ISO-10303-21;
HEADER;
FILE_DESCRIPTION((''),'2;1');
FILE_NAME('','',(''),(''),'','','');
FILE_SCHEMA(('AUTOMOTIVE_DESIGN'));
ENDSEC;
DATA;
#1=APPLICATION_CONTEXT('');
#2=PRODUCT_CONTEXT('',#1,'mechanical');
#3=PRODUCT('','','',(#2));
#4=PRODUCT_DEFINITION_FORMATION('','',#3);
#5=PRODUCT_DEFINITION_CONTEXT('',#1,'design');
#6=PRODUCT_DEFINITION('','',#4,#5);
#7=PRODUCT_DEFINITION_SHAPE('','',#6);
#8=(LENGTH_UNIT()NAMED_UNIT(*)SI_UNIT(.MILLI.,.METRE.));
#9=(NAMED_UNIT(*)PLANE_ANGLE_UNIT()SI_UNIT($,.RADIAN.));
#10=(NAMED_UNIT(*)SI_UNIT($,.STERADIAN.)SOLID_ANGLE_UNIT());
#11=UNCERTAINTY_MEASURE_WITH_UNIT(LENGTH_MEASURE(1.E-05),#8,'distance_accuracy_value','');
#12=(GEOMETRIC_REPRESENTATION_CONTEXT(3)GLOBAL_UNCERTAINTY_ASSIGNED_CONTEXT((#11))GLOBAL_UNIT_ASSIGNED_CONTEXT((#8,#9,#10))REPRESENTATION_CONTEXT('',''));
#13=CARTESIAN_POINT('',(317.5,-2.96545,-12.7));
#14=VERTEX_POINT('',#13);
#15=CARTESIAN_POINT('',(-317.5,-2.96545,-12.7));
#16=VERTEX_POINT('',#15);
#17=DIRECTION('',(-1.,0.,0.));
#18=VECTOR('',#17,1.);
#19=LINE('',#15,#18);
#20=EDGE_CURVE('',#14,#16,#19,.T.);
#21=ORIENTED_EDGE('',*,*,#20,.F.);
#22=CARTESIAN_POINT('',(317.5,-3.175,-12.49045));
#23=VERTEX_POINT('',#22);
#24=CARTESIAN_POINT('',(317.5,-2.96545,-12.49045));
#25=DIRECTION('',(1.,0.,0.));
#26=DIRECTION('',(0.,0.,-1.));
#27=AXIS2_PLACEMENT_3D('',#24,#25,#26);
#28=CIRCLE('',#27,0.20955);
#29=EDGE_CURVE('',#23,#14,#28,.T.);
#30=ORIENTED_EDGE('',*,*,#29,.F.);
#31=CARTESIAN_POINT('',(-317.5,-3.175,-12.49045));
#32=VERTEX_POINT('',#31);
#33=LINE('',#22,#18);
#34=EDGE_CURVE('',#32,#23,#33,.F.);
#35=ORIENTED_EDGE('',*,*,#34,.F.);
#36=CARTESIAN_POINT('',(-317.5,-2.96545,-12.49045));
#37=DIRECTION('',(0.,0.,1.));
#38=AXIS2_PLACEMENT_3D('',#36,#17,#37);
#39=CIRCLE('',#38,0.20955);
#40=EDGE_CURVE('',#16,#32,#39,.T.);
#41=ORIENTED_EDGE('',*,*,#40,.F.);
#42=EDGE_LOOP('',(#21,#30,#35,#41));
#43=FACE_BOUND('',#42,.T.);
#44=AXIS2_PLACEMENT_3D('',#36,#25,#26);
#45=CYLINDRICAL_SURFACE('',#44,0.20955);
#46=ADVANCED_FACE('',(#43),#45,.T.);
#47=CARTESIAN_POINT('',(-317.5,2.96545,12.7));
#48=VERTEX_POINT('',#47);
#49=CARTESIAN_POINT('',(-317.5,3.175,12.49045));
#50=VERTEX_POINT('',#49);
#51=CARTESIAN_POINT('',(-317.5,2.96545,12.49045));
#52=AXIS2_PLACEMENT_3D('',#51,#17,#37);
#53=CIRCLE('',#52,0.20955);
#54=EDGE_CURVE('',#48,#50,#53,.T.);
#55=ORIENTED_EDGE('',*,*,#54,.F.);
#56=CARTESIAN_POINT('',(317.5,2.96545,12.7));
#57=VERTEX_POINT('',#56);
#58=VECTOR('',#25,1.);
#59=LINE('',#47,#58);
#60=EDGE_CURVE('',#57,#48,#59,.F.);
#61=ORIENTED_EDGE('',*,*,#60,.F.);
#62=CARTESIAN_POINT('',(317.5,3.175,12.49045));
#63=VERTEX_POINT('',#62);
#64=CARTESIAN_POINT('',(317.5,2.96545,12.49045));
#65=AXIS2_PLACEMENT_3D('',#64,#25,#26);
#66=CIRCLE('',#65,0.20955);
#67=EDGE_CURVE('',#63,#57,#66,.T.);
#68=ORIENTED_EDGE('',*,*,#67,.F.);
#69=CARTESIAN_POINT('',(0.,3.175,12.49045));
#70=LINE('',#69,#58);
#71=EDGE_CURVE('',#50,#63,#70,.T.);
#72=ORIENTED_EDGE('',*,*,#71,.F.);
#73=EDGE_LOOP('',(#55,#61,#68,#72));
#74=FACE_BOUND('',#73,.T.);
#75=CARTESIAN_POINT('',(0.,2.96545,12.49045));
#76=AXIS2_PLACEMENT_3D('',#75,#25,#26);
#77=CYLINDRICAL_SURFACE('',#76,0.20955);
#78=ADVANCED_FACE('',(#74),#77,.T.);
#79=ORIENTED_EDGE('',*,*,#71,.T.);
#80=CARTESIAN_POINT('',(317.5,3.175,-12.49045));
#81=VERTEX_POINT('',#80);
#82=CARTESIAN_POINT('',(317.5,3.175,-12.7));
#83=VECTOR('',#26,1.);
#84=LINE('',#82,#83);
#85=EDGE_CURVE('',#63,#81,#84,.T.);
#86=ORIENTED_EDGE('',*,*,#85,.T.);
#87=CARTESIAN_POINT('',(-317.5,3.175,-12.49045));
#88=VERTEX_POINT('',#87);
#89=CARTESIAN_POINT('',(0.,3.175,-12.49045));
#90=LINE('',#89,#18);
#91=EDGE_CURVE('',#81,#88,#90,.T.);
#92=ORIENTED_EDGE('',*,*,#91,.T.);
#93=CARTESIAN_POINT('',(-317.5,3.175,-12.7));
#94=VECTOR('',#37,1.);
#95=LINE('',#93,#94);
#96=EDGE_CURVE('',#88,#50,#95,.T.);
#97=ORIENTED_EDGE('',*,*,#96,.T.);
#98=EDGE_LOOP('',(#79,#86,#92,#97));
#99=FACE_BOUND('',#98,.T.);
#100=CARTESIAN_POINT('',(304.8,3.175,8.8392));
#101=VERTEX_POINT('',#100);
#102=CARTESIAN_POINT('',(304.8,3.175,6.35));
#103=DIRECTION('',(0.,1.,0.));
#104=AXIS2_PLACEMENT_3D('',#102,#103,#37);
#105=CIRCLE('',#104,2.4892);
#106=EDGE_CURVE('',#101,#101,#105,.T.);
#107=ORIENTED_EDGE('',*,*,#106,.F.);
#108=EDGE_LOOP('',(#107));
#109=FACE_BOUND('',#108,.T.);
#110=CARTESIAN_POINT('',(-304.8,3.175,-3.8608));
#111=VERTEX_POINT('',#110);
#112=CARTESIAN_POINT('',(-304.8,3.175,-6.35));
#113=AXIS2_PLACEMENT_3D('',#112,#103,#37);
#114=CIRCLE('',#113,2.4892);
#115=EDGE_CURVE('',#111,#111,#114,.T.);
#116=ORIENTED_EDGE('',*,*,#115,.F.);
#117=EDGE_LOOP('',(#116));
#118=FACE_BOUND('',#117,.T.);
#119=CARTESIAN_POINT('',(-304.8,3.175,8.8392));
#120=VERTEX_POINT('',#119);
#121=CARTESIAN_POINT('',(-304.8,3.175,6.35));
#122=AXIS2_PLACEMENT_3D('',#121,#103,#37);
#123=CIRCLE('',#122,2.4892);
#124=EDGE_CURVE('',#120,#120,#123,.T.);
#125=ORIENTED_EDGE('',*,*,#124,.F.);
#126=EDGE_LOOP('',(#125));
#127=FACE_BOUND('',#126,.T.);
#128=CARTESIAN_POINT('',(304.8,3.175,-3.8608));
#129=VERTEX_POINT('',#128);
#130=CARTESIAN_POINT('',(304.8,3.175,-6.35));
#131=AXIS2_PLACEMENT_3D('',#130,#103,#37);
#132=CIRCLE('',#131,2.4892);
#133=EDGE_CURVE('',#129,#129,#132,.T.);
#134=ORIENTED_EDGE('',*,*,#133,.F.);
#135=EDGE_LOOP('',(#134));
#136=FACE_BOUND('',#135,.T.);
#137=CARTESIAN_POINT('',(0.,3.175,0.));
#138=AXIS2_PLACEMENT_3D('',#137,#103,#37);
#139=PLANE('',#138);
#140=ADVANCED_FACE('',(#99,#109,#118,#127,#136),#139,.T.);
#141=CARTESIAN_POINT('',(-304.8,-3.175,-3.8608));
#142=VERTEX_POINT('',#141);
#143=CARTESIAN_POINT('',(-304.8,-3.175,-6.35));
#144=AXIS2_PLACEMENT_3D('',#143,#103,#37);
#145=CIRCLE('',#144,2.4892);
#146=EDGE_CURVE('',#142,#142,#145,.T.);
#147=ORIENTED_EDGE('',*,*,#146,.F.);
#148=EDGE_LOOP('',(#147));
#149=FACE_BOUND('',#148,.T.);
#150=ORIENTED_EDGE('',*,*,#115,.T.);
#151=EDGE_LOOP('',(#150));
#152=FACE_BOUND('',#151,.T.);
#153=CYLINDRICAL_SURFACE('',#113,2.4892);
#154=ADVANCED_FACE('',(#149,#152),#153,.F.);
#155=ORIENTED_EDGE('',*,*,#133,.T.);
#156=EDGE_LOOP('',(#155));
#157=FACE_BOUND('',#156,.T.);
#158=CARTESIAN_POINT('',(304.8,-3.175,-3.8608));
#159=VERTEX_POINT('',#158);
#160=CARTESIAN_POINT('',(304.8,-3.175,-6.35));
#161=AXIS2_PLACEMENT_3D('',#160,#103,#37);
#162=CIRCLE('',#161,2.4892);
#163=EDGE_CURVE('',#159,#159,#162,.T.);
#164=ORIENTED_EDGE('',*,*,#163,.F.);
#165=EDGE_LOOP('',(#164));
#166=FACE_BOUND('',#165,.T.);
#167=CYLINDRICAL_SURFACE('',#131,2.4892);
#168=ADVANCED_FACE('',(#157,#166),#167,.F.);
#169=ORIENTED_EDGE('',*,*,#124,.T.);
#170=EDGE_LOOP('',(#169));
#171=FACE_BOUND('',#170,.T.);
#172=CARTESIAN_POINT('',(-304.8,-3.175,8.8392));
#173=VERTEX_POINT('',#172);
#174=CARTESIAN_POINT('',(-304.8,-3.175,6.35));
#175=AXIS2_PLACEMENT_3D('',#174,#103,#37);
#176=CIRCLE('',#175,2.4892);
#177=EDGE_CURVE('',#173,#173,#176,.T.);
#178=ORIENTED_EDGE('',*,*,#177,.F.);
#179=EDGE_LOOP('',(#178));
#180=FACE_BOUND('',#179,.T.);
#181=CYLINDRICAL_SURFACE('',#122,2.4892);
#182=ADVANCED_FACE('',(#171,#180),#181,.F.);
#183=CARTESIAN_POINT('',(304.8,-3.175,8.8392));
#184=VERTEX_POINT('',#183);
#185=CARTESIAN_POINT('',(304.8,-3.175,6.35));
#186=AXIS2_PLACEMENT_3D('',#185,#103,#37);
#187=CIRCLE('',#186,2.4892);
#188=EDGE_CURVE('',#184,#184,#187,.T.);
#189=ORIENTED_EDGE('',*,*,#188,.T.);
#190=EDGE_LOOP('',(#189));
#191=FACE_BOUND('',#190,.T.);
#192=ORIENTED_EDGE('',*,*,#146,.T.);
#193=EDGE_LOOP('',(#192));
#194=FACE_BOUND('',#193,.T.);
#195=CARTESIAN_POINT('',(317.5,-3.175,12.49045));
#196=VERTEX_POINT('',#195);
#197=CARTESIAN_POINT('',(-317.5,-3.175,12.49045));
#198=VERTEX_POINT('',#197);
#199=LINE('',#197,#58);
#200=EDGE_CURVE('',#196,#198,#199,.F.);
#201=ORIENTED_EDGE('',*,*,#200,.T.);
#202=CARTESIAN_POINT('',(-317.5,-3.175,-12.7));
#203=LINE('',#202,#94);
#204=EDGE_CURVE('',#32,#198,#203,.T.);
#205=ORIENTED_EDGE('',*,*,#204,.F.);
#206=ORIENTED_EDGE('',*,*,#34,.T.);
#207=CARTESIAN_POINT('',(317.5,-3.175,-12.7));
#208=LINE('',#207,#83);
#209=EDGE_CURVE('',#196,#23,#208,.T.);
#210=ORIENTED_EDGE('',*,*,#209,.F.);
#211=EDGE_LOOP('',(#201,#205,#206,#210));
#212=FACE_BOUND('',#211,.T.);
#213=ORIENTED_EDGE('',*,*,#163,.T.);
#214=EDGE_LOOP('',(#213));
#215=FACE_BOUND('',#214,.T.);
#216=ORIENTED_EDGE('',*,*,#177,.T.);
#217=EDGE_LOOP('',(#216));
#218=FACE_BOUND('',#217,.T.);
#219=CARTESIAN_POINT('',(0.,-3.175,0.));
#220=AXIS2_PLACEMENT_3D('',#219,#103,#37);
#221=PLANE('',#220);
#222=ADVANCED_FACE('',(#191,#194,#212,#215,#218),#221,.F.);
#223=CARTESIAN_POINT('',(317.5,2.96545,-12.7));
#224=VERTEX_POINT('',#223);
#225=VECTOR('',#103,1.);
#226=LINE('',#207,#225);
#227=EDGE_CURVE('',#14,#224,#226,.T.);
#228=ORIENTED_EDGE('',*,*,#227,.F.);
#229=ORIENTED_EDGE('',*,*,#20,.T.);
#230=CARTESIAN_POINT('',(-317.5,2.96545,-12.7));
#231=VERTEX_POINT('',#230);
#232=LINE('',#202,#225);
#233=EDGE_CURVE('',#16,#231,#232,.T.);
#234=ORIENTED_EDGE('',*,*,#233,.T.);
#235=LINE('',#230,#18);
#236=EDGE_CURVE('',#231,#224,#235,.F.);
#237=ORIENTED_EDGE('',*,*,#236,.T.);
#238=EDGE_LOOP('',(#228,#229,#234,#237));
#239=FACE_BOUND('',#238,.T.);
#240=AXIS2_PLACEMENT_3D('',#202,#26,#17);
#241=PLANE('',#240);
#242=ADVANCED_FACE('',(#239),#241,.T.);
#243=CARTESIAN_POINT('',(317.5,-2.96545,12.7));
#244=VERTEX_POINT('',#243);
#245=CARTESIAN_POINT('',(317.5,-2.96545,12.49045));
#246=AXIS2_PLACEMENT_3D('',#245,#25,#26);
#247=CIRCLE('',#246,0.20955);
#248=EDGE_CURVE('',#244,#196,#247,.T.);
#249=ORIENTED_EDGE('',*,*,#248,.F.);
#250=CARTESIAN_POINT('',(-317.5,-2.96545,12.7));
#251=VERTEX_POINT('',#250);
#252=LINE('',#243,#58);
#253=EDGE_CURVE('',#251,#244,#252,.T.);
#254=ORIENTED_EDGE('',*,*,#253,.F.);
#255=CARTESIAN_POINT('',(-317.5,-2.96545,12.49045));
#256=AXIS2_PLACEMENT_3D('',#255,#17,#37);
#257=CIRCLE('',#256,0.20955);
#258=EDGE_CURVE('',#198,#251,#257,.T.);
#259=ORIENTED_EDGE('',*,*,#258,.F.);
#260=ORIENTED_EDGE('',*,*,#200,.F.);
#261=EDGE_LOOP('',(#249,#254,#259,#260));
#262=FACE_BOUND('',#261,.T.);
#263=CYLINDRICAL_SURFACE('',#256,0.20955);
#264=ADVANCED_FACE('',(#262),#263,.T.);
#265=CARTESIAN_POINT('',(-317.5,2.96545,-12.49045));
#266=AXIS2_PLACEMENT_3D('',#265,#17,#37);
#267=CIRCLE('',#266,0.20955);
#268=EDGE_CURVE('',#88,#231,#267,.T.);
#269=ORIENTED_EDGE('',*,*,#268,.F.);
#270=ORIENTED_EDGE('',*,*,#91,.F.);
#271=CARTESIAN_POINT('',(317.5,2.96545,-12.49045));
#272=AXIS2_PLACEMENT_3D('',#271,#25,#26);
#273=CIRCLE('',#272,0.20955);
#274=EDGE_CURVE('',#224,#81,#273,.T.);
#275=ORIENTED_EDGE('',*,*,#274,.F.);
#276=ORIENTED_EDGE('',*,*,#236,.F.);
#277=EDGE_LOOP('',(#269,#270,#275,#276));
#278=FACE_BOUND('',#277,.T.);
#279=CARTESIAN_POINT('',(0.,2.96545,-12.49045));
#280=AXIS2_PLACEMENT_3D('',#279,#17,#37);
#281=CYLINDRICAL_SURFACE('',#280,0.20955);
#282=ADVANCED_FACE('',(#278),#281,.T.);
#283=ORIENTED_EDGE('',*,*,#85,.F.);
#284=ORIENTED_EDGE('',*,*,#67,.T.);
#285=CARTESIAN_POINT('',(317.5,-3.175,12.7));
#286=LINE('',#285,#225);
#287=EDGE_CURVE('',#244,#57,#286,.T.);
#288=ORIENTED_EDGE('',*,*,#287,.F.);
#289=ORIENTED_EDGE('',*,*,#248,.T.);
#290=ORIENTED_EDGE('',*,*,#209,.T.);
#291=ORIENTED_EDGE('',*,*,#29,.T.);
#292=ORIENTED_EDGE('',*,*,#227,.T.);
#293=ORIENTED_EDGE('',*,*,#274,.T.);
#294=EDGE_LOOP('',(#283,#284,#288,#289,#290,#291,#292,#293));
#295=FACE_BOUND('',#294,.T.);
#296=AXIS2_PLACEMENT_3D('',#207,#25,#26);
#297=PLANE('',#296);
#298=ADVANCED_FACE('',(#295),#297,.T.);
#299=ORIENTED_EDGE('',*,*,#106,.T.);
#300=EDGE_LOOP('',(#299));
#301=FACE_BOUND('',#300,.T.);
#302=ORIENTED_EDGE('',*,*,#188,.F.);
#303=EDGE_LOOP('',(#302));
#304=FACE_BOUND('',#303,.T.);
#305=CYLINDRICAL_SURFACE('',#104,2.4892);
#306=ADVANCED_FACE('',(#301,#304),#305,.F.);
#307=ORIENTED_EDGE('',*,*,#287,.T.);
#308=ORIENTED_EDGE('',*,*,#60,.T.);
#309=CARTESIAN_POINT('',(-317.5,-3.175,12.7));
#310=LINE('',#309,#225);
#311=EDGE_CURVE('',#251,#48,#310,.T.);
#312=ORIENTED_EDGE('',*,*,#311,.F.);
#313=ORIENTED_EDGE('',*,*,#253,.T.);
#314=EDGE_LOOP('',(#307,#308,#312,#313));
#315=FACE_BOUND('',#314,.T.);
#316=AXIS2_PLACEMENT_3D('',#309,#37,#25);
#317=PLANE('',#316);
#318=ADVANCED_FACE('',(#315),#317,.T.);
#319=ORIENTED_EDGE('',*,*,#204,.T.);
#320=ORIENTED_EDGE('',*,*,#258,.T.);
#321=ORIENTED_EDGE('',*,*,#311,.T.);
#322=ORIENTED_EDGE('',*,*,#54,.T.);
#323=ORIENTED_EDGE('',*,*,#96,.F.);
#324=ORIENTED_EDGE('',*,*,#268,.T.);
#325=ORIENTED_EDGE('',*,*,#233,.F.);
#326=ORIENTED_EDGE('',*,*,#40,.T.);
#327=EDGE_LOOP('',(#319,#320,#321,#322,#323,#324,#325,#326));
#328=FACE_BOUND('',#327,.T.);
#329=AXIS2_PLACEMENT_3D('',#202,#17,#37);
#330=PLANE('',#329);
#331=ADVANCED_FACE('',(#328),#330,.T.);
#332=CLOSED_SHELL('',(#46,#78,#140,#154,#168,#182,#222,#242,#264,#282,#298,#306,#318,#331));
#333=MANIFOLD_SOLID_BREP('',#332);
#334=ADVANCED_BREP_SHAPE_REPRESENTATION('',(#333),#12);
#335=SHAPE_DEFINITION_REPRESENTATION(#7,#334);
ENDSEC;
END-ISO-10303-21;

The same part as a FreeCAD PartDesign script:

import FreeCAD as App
import Part
import Sketcher
from FreeCAD import Vector
Q = App.Units.Quantity


def edges_at(feature, points):
    """Names of the edges that pass closest to the given points."""
    edges = feature.Shape.Edges
    near = lambda p: min(range(len(edges)), key=lambda i: edges[i].distToShape(Part.Vertex(*p))[0])
    return sorted({f"Edge{near(p) + 1}" for p in points})


def add_polygon(sketch, points):
    """Adds a closed chain of lines whose ends are joined by coincident constraints."""
    first, n = sketch.GeometryCount, len(points)
    for a, b in zip(points, points[1:] + points[:1]):
        sketch.addGeometry(Part.LineSegment(App.Vector(*a, 0), App.Vector(*b, 0)), False)
    for i in range(n):
        sketch.addConstraint(Sketcher.Constraint("Coincident", first + i, 2, first + (i + 1) % n, 1))

doc = App.newDocument("Part")
body = doc.addObject("PartDesign::Body", "Body")

# Sketch on XZ plane
sketch1 = doc.addObject("Sketcher::SketchObject", "Sketch")
body.addObject(sketch1)
sketch1.AttachmentSupport = (doc.XZ_Plane, [""])
sketch1.MapMode = "FlatFace"
add_polygon(sketch1, [(-318, -13), (-318, 13), (318, 13), (318, -13)])  # lines 0-3
sketch1.addConstraint([
    Sketcher.Constraint("Vertical", 0),
    Sketcher.Constraint("Horizontal", 1),
    Sketcher.Constraint("Vertical", 2),
    Sketcher.Constraint("Horizontal", 3),
    Sketcher.Constraint("Symmetric", 0, 2, 2, 2, -1, 1),
    Sketcher.Constraint("DistanceX", 1, 1, 1, 2, Q("25 in")),
    Sketcher.Constraint("DistanceY", 0, 1, 0, 2, Q("1 in")),
])
pad1 = doc.addObject("PartDesign::Pad", "Pad")
body.addObject(pad1)
pad1.Profile = sketch1
pad1.Type = "TwoLengths"
pad1.Length = Q("0.125 in")
pad1.Length2 = Q("0.125 in")
pad1.Reversed = True
doc.recompute()

fillet = doc.addObject("PartDesign::Fillet", "Fillet")
body.addObject(fillet)
fillet.Base = (pad1, edges_at(pad1, [
    (0, 3.175, 12.7),
    (0, -3.175, -12.7),
    (0, 3.175, -12.7),
    (0, -3.175, 12.7),
]))
fillet.Radius = 0.20955

# Sketch on XZ plane
sketch2 = doc.addObject("Sketcher::SketchObject", "Sketch001")
body.addObject(sketch2)
sketch2.AttachmentSupport = (doc.XZ_Plane, [""])
sketch2.MapMode = "FlatFace"
sketch2.AttachmentOffset = App.Placement(Vector(0, 0, -0.125 * 25.4), App.Rotation())
sketch2.addGeometry([
    Part.Circle(Vector(304.8, 6.3, 0), Vector(0, 0, 1), 2.5),
    Part.Circle(Vector(-304.8, 6.3, 0), Vector(0, 0, 1), 2.5),
    Part.Circle(Vector(304.8, -6.3, 0), Vector(0, 0, 1), 2.5),
    Part.Circle(Vector(-304.8, -6.3, 0), Vector(0, 0, 1), 2.5),
], False)
sketch2.addConstraint([
    Sketcher.Constraint("Equal", 0, 1),
    Sketcher.Constraint("Equal", 1, 2),
    Sketcher.Constraint("Equal", 2, 3),
    Sketcher.Constraint("Symmetric", 1, 3, 2, 3, -1, 1),
    Sketcher.Constraint("Symmetric", 0, 3, 3, 3, -1, 1),
    Sketcher.Constraint("Symmetric", 0, 3, 1, 3, -2),
    Sketcher.Constraint("Diameter", 0, Q("0.196 in")),
    Sketcher.Constraint("DistanceX", -1, 1, 0, 3, Q("12 in")),
    Sketcher.Constraint("DistanceY", 2, 3, 0, 3, Q("0.5 in")),
])
doc.recompute()
hole = doc.addObject("PartDesign::Hole", "Hole")
body.addObject(hole)
hole.Profile = sketch2
hole.ThreadType = "None"
hole.Diameter = Q("0.196 in")
hole.DepthType = "ThroughAll"
hole.Reversed = True

doc.recompute()
